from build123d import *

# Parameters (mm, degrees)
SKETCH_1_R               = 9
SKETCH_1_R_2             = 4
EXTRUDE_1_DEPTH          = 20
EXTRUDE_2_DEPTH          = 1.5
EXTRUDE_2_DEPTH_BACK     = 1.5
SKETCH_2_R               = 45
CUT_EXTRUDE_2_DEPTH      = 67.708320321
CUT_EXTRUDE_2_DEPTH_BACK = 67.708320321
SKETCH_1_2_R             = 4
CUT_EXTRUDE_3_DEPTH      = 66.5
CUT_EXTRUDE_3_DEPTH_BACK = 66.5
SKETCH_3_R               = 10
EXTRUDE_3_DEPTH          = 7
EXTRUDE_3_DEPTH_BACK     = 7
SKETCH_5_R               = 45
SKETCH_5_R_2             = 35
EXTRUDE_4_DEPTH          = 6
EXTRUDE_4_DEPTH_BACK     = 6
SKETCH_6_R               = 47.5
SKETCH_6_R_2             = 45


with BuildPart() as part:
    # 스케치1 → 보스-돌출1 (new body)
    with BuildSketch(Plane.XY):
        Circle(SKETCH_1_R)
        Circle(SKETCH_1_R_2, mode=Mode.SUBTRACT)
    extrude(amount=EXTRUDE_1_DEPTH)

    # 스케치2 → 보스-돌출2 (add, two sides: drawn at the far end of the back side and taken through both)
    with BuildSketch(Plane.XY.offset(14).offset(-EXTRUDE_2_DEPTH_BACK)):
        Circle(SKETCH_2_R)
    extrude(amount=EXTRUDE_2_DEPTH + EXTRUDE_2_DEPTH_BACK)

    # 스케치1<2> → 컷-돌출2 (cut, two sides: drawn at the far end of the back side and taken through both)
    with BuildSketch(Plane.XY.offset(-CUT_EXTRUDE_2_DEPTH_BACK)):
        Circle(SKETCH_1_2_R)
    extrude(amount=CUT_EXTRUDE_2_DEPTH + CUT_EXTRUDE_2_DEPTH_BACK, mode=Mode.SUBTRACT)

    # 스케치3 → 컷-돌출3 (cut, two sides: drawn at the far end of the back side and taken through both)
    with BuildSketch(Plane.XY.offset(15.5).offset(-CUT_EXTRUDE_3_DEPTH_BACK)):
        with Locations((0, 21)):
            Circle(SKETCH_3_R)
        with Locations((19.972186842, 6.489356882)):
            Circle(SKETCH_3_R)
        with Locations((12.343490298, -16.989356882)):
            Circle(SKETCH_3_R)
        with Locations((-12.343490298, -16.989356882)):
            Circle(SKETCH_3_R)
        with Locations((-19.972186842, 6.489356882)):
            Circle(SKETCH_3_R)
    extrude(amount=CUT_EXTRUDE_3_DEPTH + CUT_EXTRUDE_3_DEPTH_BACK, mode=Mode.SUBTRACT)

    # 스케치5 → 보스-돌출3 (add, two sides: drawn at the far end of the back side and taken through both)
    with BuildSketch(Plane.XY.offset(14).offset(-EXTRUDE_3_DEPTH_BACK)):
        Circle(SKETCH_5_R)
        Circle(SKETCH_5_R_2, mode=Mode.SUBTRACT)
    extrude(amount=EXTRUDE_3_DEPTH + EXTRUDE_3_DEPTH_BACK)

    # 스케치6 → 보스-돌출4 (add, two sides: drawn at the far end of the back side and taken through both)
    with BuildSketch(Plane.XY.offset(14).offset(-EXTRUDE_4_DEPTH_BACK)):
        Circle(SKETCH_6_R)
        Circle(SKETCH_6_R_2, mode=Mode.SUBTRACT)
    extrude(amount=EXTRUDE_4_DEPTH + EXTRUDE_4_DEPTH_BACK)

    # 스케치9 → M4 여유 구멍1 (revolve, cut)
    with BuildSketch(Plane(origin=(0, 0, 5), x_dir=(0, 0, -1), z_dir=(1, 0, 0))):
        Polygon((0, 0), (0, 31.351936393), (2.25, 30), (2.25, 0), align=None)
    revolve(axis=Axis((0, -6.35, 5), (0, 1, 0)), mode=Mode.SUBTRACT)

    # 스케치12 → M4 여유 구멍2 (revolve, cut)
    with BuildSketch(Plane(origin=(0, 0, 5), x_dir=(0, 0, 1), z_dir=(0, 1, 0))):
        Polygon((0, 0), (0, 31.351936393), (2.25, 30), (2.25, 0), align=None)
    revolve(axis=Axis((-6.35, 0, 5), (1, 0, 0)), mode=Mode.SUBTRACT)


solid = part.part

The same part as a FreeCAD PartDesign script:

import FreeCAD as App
import Part
import Sketcher
from FreeCAD import Vector
Q = App.Units.Quantity


def add_polygon(sketch, points):
    """Adds a closed chain of lines whose ends are joined by coincident constraints."""
    first, n = sketch.GeometryCount, len(points)
    for a, b in zip(points, points[1:] + points[:1]):
        sketch.addGeometry(Part.LineSegment(App.Vector(*a, 0), App.Vector(*b, 0)), False)
    for i in range(n):
        sketch.addConstraint(Sketcher.Constraint("Coincident", first + i, 2, first + (i + 1) % n, 1))

doc = App.newDocument("Part")
body = doc.addObject("PartDesign::Body", "Body")

# Sketch on XY plane
sketch1 = body.newObject("Sketcher::SketchObject", "Sketch")
sketch1.AttachmentSupport = (doc.getObject("XY_Plane"), [""])
sketch1.MapMode = "FlatFace"
sketch1.addGeometry(Part.Circle(Vector(0, 0, 0), Vector(0, 0, 1), 9), False)
sketch1.addGeometry(Part.Circle(Vector(0, 0, 0), Vector(0, 0, 1), 4), False)
sketch1.addConstraint(Sketcher.Constraint("Coincident", 0, 3, -1, 1))
sketch1.addConstraint(Sketcher.Constraint("Coincident", 1, 3, -1, 1))
sketch1.addConstraint(Sketcher.Constraint("Diameter", 0, 18.0))
sketch1.addConstraint(Sketcher.Constraint("Diameter", 1, 8.0))
pad1 = body.newObject("PartDesign::Pad", "Pad")
pad1.Profile = sketch1
pad1.Length = 20

# Sketch on XY plane
sketch2 = body.newObject("Sketcher::SketchObject", "Sketch001")
sketch2.AttachmentSupport = (doc.getObject("XY_Plane"), [""])
sketch2.MapMode = "FlatFace"
sketch2.AttachmentOffset = App.Placement(Vector(0, 0, 14), App.Rotation())
sketch2.addGeometry(Part.Circle(Vector(0, 0, 0), Vector(0, 0, 1), 45), False)
sketch2.addConstraint(Sketcher.Constraint("Coincident", 0, 3, -1, 1))
sketch2.addConstraint(Sketcher.Constraint("Diameter", 0, 90.0))
pad2 = body.newObject("PartDesign::Pad", "Pad001")
pad2.Profile = sketch2
pad2.Type = "TwoLengths"
pad2.Length = 1.5
pad2.Length2 = 1.5

# Sketch on XY plane
sketch3 = body.newObject("Sketcher::SketchObject", "Sketch002")
sketch3.AttachmentSupport = (doc.getObject("XY_Plane"), [""])
sketch3.MapMode = "FlatFace"
sketch3.addGeometry(Part.Circle(Vector(0, 0, 0), Vector(0, 0, 1), 4), False)
sketch3.addConstraint(Sketcher.Constraint("Coincident", 0, 3, -1, 1))
sketch3.addConstraint(Sketcher.Constraint("Diameter", 0, 8.0))
pocket1 = body.newObject("PartDesign::Pocket", "Pocket")
pocket1.Profile = sketch3
pocket1.Type = "ThroughAll"
pocket1.Midplane = True

# Sketch on XY plane
sketch4 = body.newObject("Sketcher::SketchObject", "Sketch003")
sketch4.AttachmentSupport = (doc.getObject("XY_Plane"), [""])
sketch4.MapMode = "FlatFace"
sketch4.AttachmentOffset = App.Placement(Vector(0, 0, 15.5), App.Rotation())
sketch4.addGeometry(Part.Circle(Vector(0, 21, 0), Vector(0, 0, 1), 10), False)
sketch4.addGeometry(Part.Circle(Vector(20, 6, 0), Vector(0, 0, 1), 10), False)
sketch4.addGeometry(Part.Circle(Vector(12, -17, 0), Vector(0, 0, 1), 10), False)
sketch4.addGeometry(Part.Circle(Vector(-12, -17, 0), Vector(0, 0, 1), 10), False)
sketch4.addGeometry(Part.Circle(Vector(-20, 6, 0), Vector(0, 0, 1), 10), False)
sketch4.addConstraint(Sketcher.Constraint("Equal", 0, 1))
sketch4.addConstraint(Sketcher.Constraint("Equal", 1, 2))
sketch4.addConstraint(Sketcher.Constraint("Equal", 2, 3))
sketch4.addConstraint(Sketcher.Constraint("Equal", 3, 4))
sketch4.addConstraint(Sketcher.Constraint("Symmetric", 2, 3, 3, 3, -2))
sketch4.addConstraint(Sketcher.Constraint("Symmetric", 1, 3, 4, 3, -2))
sketch4.addConstraint(Sketcher.Constraint("PointOnObject", 0, 3, -2))
sketch4.addConstraint(Sketcher.Constraint("Diameter", 0, 20.0))
sketch4.addConstraint(Sketcher.Constraint("DistanceY", -1, 1, 0, 3, 21.0))
sketch4.addConstraint(Sketcher.Constraint("DistanceX", -1, 1, 2, 3, 12.34349))
sketch4.addConstraint(Sketcher.Constraint("DistanceX", -1, 1, 1, 3, 19.972187))
sketch4.addConstraint(Sketcher.Constraint("DistanceY", -1, 1, 1, 3, 6.489357))
sketch4.addConstraint(Sketcher.Constraint("DistanceY", 2, 3, -1, 1, 16.989357))
pocket2 = body.newObject("PartDesign::Pocket", "Pocket001")
pocket2.Profile = sketch4
pocket2.Type = "ThroughAll"
pocket2.Midplane = True

# Sketch on XY plane
sketch5 = body.newObject("Sketcher::SketchObject", "Sketch004")
sketch5.AttachmentSupport = (doc.getObject("XY_Plane"), [""])
sketch5.MapMode = "FlatFace"
sketch5.AttachmentOffset = App.Placement(Vector(0, 0, 14), App.Rotation())
sketch5.addGeometry(Part.Circle(Vector(0, 0, 0), Vector(0, 0, 1), 45), False)
sketch5.addGeometry(Part.Circle(Vector(0, 0, 0), Vector(0, 0, 1), 35), False)
sketch5.addConstraint(Sketcher.Constraint("Coincident", 0, 3, -1, 1))
sketch5.addConstraint(Sketcher.Constraint("Coincident", 1, 3, -1, 1))
sketch5.addConstraint(Sketcher.Constraint("Diameter", 0, 90.0))
sketch5.addConstraint(Sketcher.Constraint("Diameter", 1, 70.0))
pad3 = body.newObject("PartDesign::Pad", "Pad002")
pad3.Profile = sketch5
pad3.Type = "TwoLengths"
pad3.Length = 7
pad3.Length2 = 7

# Sketch on XY plane
sketch6 = body.newObject("Sketcher::SketchObject", "Sketch005")
sketch6.AttachmentSupport = (doc.getObject("XY_Plane"), [""])
sketch6.MapMode = "FlatFace"
sketch6.AttachmentOffset = App.Placement(Vector(0, 0, 14), App.Rotation())
sketch6.addGeometry(Part.Circle(Vector(0, 0, 0), Vector(0, 0, 1), 48), False)
sketch6.addGeometry(Part.Circle(Vector(0, 0, 0), Vector(0, 0, 1), 45), False)
sketch6.addConstraint(Sketcher.Constraint("Coincident", 0, 3, -1, 1))
sketch6.addConstraint(Sketcher.Constraint("Coincident", 1, 3, -1, 1))
sketch6.addConstraint(Sketcher.Constraint("Diameter", 0, 95.0))
sketch6.addConstraint(Sketcher.Constraint("Diameter", 1, 90.0))
pad4 = body.newObject("PartDesign::Pad", "Pad003")
pad4.Profile = sketch6
pad4.Type = "TwoLengths"
pad4.Length = 6
pad4.Length2 = 6

# Sketch on YZ plane
sketch7 = body.newObject("Sketcher::SketchObject", "Sketch006")
sketch7.AttachmentSupport = (doc.getObject("YZ_Plane"), [""])
sketch7.MapMode = "FlatFace"
add_polygon(sketch7, [(31.4, 5), (0, 5), (0, 2.8), (30, 2.8)])  # lines 0-3
sketch7.addGeometry(Part.LineSegment(Vector(0, 5, 0), Vector(31.4, 5, 0)), True)  # axis
sketch7.addConstraint(Sketcher.Constraint("Horizontal", 0))
sketch7.addConstraint(Sketcher.Constraint("Vertical", 1))
sketch7.addConstraint(Sketcher.Constraint("Horizontal", 2))
sketch7.addConstraint(Sketcher.Constraint("Horizontal", 4))
sketch7.addConstraint(Sketcher.Constraint("Coincident", 4, 1, 0, 2))
sketch7.addConstraint(Sketcher.Constraint("PointOnObject", 0, 2, -2))
sketch7.addConstraint(Sketcher.Constraint("Equal", 0, 4))
sketch7.addConstraint(Sketcher.Constraint("DistanceX", 2, 1, 2, 2, 30.0))
sketch7.addConstraint(Sketcher.Constraint("Angle", 3, Q("59 deg")))
sketch7.addConstraint(Sketcher.Constraint("DistanceY", -1, 1, 0, 2, 5.0))
sketch7.addConstraint(Sketcher.Constraint("DistanceY", 1, 2, 1, 1, 2.25))
groove = body.newObject("PartDesign::Groove", "Groove")
groove.Profile = sketch7
groove.ReferenceAxis = (sketch7, ["Axis0"])
groove.Angle = 360

# Sketch on XZ plane
sketch8 = body.newObject("Sketcher::SketchObject", "Sketch007")
sketch8.AttachmentSupport = (doc.getObject("XZ_Plane"), [""])
sketch8.MapMode = "FlatFace"
add_polygon(sketch8, [(31.4, 5), (0, 5), (0, 7.2), (30, 7.2)])  # lines 0-3
sketch8.addGeometry(Part.LineSegment(Vector(0, 5, 0), Vector(31.4, 5, 0)), True)  # axis
sketch8.addConstraint(Sketcher.Constraint("Horizontal", 0))
sketch8.addConstraint(Sketcher.Constraint("Vertical", 1))
sketch8.addConstraint(Sketcher.Constraint("Horizontal", 2))
sketch8.addConstraint(Sketcher.Constraint("Horizontal", 4))
sketch8.addConstraint(Sketcher.Constraint("Coincident", 4, 1, 0, 2))
sketch8.addConstraint(Sketcher.Constraint("PointOnObject", 0, 2, -2))
sketch8.addConstraint(Sketcher.Constraint("Equal", 0, 4))
sketch8.addConstraint(Sketcher.Constraint("DistanceX", 2, 1, 2, 2, 30.0))
sketch8.addConstraint(Sketcher.Constraint("Angle", 3, Q("-59 deg")))
sketch8.addConstraint(Sketcher.Constraint("DistanceY", -1, 1, 0, 2, 5.0))
sketch8.addConstraint(Sketcher.Constraint("DistanceY", 1, 1, 1, 2, 2.25))
groove2 = body.newObject("PartDesign::Groove", "Groove001")
groove2.Profile = sketch8
groove2.ReferenceAxis = (sketch8, ["Axis0"])
groove2.Angle = 360

doc.recompute()
